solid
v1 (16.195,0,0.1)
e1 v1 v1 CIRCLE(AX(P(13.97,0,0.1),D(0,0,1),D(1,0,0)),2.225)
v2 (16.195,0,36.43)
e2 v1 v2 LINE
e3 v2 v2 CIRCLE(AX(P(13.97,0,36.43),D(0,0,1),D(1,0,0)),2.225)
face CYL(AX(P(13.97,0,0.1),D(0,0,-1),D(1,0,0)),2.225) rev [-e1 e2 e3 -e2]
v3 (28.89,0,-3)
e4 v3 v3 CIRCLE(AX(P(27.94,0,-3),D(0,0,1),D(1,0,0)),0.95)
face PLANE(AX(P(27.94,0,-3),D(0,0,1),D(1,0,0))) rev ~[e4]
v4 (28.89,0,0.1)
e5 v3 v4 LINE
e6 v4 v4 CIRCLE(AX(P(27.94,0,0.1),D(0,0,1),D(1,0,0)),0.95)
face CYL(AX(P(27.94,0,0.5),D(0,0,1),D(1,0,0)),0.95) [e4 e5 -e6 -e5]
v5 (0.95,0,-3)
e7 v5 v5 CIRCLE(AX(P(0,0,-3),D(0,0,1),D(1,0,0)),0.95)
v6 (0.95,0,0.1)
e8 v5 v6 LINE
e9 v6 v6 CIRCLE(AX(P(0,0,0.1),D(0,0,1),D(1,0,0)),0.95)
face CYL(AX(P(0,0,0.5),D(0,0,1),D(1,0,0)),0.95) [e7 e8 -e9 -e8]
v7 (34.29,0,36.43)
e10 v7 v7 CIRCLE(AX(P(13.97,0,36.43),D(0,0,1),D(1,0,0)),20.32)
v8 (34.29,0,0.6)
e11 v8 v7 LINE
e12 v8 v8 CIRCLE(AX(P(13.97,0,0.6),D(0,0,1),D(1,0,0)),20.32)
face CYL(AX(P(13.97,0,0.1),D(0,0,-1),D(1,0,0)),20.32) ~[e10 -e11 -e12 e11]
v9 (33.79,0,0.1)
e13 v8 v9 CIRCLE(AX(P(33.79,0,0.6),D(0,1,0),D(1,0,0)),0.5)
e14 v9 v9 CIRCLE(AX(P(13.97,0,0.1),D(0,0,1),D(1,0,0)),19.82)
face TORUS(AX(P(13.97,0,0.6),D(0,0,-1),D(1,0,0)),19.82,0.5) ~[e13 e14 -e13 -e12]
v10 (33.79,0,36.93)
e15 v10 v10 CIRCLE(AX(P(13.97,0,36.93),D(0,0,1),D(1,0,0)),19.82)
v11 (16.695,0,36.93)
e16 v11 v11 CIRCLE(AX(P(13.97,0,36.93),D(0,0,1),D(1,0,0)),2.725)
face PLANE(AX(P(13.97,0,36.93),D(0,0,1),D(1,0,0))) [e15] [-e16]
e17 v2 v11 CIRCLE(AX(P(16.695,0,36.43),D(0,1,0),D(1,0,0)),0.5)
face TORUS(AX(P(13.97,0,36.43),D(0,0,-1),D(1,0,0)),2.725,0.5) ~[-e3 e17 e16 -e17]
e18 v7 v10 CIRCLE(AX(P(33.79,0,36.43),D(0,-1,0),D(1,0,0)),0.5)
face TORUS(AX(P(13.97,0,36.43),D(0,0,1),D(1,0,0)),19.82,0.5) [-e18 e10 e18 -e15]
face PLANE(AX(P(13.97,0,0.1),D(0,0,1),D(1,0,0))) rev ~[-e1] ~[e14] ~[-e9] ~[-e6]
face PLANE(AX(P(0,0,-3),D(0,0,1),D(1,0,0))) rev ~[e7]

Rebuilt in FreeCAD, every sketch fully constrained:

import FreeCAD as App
import Part
import Sketcher
Q = App.Units.Quantity


def edges_at(feature, points):
    """Names of the edges that pass closest to the given points."""
    edges = feature.Shape.Edges
    near = lambda p: min(range(len(edges)), key=lambda i: edges[i].distToShape(Part.Vertex(*p))[0])
    return sorted({f"Edge{near(p) + 1}" for p in points})

doc = App.newDocument("Part")
body = doc.addObject("PartDesign::Body", "Body")
body.AllowCompound = True

# Sketch on XY plane
sketch1 = body.newObject("Sketcher::SketchObject", "Sketch")
sketch1.AttachmentSupport = (doc.getObject("XY_Plane"), [""])
sketch1.MapMode = "FlatFace"
sketch1.AttachmentOffset = App.Placement(App.Vector(0, 0, 0.5), App.Rotation())
sketch1.addGeometry(Part.Circle(App.Vector(0, 0, 0), App.Vector(0, 0, 1), 0.9), False)
sketch1.addGeometry(Part.Circle(App.Vector(27.9, 0, 0), App.Vector(0, 0, 1), 0.9), False)
sketch1.addConstraint(Sketcher.Constraint("Coincident", 0, 3, -1, 1))
sketch1.addConstraint(Sketcher.Constraint("Equal", 0, 1))
sketch1.addConstraint(Sketcher.Constraint("PointOnObject", 1, 3, -1))
sketch1.addConstraint(Sketcher.Constraint("DistanceX", -1, 1, 1, 3, Q("1.1 in")))
sketch1.addConstraint(Sketcher.Constraint("Diameter", 0, 1.9))
pad1 = body.newObject("PartDesign::Pad", "Pad")
pad1.Profile = sketch1
pad1.Type = "TwoLengths"
pad1.Length = Q("0.725 in")
pad1.Length2 = 3.5
body2 = doc.addObject("PartDesign::Body", "Body001")

# Sketch on XY plane
sketch2 = body2.newObject("Sketcher::SketchObject", "Sketch001")
sketch2.AttachmentSupport = (doc.getObject("XY_Plane001"), [""])
sketch2.MapMode = "FlatFace"
sketch2.AttachmentOffset = App.Placement(App.Vector(0, 0, 0.1), App.Rotation())
sketch2.addGeometry(Part.Circle(App.Vector(14, 0, 0), App.Vector(0, 0, 1), 20.3), False)
sketch2.addGeometry(Part.Circle(App.Vector(14, 0, 0), App.Vector(0, 0, 1), 2.2), False)
sketch2.addConstraint(Sketcher.Constraint("Coincident", 1, 3, 0, 3))
sketch2.addConstraint(Sketcher.Constraint("PointOnObject", 0, 3, -1))
sketch2.addConstraint(Sketcher.Constraint("Diameter", 0, Q("1.6 in")))
sketch2.addConstraint(Sketcher.Constraint("Diameter", 1, 4.45))
sketch2.addConstraint(Sketcher.Constraint("DistanceX", -1, 1, 0, 3, Q("0.55 in")))
pad2 = body2.newObject("PartDesign::Pad", "Pad001")
pad2.Profile = sketch2
pad2.Length = Q("1.45 in")
doc.recompute()

fillet = body2.newObject("PartDesign::Fillet", "Fillet")
fillet.Base = (pad2, edges_at(pad2, [(11.745, 0, 36.93), (-6.35, 0, 36.93), (-6.35, 0, 0.1)]))
fillet.Radius = 0.5
doc.recompute()

boolean = body2.newObject("PartDesign::Boolean", "Boolean")
boolean.Type = "Fuse"
boolean.addObjects([body])

doc.recompute()
